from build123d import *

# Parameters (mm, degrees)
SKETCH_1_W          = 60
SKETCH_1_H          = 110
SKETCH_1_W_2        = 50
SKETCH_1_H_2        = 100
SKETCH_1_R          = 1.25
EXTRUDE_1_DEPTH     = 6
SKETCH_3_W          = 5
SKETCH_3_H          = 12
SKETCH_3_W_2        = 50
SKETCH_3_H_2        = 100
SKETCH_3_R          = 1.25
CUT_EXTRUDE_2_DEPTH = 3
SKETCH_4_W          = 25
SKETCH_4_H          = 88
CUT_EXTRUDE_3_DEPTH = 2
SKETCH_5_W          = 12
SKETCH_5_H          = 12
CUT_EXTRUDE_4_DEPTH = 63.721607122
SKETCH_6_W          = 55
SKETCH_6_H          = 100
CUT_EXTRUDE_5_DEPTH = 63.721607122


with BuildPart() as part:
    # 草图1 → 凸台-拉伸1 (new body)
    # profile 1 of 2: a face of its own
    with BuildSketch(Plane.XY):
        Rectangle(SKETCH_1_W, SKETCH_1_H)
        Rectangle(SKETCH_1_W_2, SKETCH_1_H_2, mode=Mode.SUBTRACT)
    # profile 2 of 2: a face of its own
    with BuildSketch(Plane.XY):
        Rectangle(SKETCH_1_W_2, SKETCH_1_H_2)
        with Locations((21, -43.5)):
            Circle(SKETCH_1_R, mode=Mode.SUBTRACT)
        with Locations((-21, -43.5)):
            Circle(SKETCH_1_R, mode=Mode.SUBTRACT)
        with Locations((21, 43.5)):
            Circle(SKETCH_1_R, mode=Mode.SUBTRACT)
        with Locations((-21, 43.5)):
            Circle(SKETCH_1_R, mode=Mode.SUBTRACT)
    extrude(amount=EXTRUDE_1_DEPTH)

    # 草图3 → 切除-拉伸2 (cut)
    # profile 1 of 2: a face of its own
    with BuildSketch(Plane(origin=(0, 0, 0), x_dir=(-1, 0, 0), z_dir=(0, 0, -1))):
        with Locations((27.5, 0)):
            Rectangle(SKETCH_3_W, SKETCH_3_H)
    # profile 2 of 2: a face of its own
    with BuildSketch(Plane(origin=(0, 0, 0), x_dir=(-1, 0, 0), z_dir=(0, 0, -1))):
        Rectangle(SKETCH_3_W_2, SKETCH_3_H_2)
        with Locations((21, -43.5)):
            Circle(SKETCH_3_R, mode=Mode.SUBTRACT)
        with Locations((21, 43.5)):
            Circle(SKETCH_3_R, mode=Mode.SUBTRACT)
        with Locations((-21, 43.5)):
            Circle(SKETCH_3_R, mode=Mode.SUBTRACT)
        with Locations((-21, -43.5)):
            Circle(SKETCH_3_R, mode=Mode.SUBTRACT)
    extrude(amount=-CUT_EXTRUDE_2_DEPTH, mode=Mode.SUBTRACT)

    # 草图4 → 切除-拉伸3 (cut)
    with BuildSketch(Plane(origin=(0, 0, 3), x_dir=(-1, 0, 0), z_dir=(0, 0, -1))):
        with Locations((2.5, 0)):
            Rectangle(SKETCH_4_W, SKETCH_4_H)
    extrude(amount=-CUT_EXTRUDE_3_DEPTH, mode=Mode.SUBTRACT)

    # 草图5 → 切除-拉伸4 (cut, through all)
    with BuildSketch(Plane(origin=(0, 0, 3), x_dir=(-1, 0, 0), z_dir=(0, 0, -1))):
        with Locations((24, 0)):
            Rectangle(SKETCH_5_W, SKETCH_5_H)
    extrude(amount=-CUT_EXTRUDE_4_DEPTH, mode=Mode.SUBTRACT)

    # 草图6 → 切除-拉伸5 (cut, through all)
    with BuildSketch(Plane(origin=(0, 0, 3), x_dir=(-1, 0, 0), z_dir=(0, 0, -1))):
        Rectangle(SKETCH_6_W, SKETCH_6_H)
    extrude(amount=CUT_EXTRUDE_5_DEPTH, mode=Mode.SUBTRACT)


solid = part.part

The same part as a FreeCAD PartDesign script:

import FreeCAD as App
import Part
import Sketcher

V = App.Vector
Q = App.Units.Quantity


def add_polygon(sketch, points):
    """Adds a closed chain of lines whose ends are joined by coincident constraints."""
    first, n = sketch.GeometryCount, len(points)
    for a, b in zip(points, points[1:] + points[:1]):
        sketch.addGeometry(Part.LineSegment(App.Vector(*a, 0), App.Vector(*b, 0)), False)
    for i in range(n):
        sketch.addConstraint(Sketcher.Constraint("Coincident", first + i, 2, first + (i + 1) % n, 1))

doc = App.newDocument("Part")
body = doc.addObject("PartDesign::Body", "Body")

sketch1 = body.newObject("Sketcher::SketchObject", "Sketch")
sketch1.AttachmentSupport = (doc.getObject("XY_Plane"), [""])
sketch1.MapMode = "FlatFace"
add_polygon(sketch1, [(-30, 55), (-30, -55), (30, -55), (30, 55)])
sketch1.addGeometry(Part.Circle(V(-21, -43.5, 0), V(0, 0, 1), 1.2), False)
sketch1.addGeometry(Part.Circle(V(21, 43.5, 0), V(0, 0, 1), 1.2), False)
sketch1.addGeometry(Part.Circle(V(21, -43.5, 0), V(0, 0, 1), 1.2), False)
sketch1.addGeometry(Part.Circle(V(-21, 43.5, 0), V(0, 0, 1), 1.2), False)
sketch1.addConstraint(Sketcher.Constraint("Vertical", 0))
sketch1.addConstraint(Sketcher.Constraint("Horizontal", 1))
sketch1.addConstraint(Sketcher.Constraint("Vertical", 2))
sketch1.addConstraint(Sketcher.Constraint("Horizontal", 3))
sketch1.addConstraint(Sketcher.Constraint("Equal", 4, 5))
sketch1.addConstraint(Sketcher.Constraint("Equal", 5, 6))
sketch1.addConstraint(Sketcher.Constraint("Equal", 6, 7))
sketch1.addConstraint(Sketcher.Constraint("Symmetric", 4, 3, 5, 3, -1, 1))
sketch1.addConstraint(Sketcher.Constraint("Symmetric", 6, 3, 7, 3, -1, 1))
sketch1.addConstraint(Sketcher.Constraint("Symmetric", 0, 2, 2, 2, -1, 1))
sketch1.addConstraint(Sketcher.Constraint("Symmetric", 4, 3, 6, 3, -2))
sketch1.addConstraint(Sketcher.Constraint("Diameter", 4, Q("2.5 mm")))
sketch1.addConstraint(Sketcher.Constraint("DistanceX", 1, 1, 1, 2, Q("60 mm")))
sketch1.addConstraint(Sketcher.Constraint("DistanceY", 0, 2, 0, 1, Q("110 mm")))
sketch1.addConstraint(Sketcher.Constraint("DistanceX", 4, 3, -1, 1, Q("21 mm")))
sketch1.addConstraint(Sketcher.Constraint("DistanceY", 4, 3, 5, 3, Q("87 mm")))
pad1 = body.newObject("PartDesign::Pad", "Pad")
pad1.Profile = sketch1
pad1.Length = 6

sketch2 = body.newObject("Sketcher::SketchObject", "Sketch001")
sketch2.AttachmentSupport = (doc.getObject("XY_Plane"), [""])
sketch2.MapMode = "FlatFace"
add_polygon(sketch2, [(-25, -6), (-30, -6), (-30, 6), (-25, 6), (-25, 50), (25, 50), (25, -50), (-25, -50)])
sketch2.addGeometry(Part.Circle(V(-21, 43.5, 0), V(0, 0, 1), 1.2), False)
sketch2.addGeometry(Part.Circle(V(21, -43.5, 0), V(0, 0, 1), 1.2), False)
sketch2.addGeometry(Part.Circle(V(-21, -43.5, 0), V(0, 0, 1), 1.2), False)
sketch2.addGeometry(Part.Circle(V(21, 43.5, 0), V(0, 0, 1), 1.2), False)
sketch2.addConstraint(Sketcher.Constraint("Horizontal", 0))
sketch2.addConstraint(Sketcher.Constraint("Vertical", 1))
sketch2.addConstraint(Sketcher.Constraint("Horizontal", 2))
sketch2.addConstraint(Sketcher.Constraint("Vertical", 3))
sketch2.addConstraint(Sketcher.Constraint("Horizontal", 4))
sketch2.addConstraint(Sketcher.Constraint("Vertical", 5))
sketch2.addConstraint(Sketcher.Constraint("Horizontal", 6))
sketch2.addConstraint(Sketcher.Constraint("Vertical", 7))
sketch2.addConstraint(Sketcher.Constraint("Equal", 8, 9))
sketch2.addConstraint(Sketcher.Constraint("Equal", 9, 10))
sketch2.addConstraint(Sketcher.Constraint("Equal", 10, 11))
sketch2.addConstraint(Sketcher.Constraint("Symmetric", 8, 3, 9, 3, -1, 1))
sketch2.addConstraint(Sketcher.Constraint("Symmetric", 10, 3, 11, 3, -1, 1))
sketch2.addConstraint(Sketcher.Constraint("Symmetric", 3, 2, 5, 2, -1, 1))
sketch2.addConstraint(Sketcher.Constraint("Symmetric", 9, 3, 10, 3, -2))
sketch2.addConstraint(Sketcher.Constraint("Symmetric", 2, 2, 7, 2, -1))
sketch2.addConstraint(Sketcher.Constraint("Diameter", 8, Q("2.5 mm")))
sketch2.addConstraint(Sketcher.Constraint("DistanceX", 0, 2, 0, 1, Q("5 mm")))
sketch2.addConstraint(Sketcher.Constraint("DistanceX", 4, 1, 4, 2, Q("50 mm")))
sketch2.addConstraint(Sketcher.Constraint("DistanceY", 1, 1, 1, 2, Q("12 mm")))
sketch2.addConstraint(Sketcher.Constraint("DistanceY", 3, 1, 3, 2, Q("44 mm")))
sketch2.addConstraint(Sketcher.Constraint("DistanceX", 8, 3, -1, 1, Q("21 mm")))
sketch2.addConstraint(Sketcher.Constraint("DistanceY", 9, 3, 8, 3, Q("87 mm")))
pocket1 = body.newObject("PartDesign::Pocket", "Pocket")
pocket1.Profile = sketch2
pocket1.Length = 3
pocket1.Reversed = True

sketch3 = body.newObject("Sketcher::SketchObject", "Sketch002")
sketch3.AttachmentSupport = (doc.getObject("XY_Plane"), [""])
sketch3.MapMode = "FlatFace"
sketch3.AttachmentOffset = App.Placement(V(0, 0, 3), App.Rotation())
add_polygon(sketch3, [(10, 44), (10, -44), (-15, -44), (-15, 44)])
sketch3.addConstraint(Sketcher.Constraint("Vertical", 0))
sketch3.addConstraint(Sketcher.Constraint("Horizontal", 1))
sketch3.addConstraint(Sketcher.Constraint("Vertical", 2))
sketch3.addConstraint(Sketcher.Constraint("Horizontal", 3))
sketch3.addConstraint(Sketcher.Constraint("DistanceX", 1, 2, 1, 1, Q("25 mm")))
sketch3.addConstraint(Sketcher.Constraint("DistanceY", 0, 2, 0, 1, Q("88 mm")))
sketch3.addConstraint(Sketcher.Constraint("DistanceX", -1, 1, 0, 2, Q("10 mm")))
sketch3.addConstraint(Sketcher.Constraint("DistanceY", 0, 2, -1, 1, Q("44 mm")))
pocket2 = body.newObject("PartDesign::Pocket", "Pocket001")
pocket2.Profile = sketch3
pocket2.Length = 2
pocket2.Reversed = True

sketch4 = body.newObject("Sketcher::SketchObject", "Sketch003")
sketch4.AttachmentSupport = (doc.getObject("XY_Plane"), [""])
sketch4.MapMode = "FlatFace"
sketch4.AttachmentOffset = App.Placement(V(0, 0, 3), App.Rotation())
add_polygon(sketch4, [(-18, 6), (-18, -6), (-30, -6), (-30, 6)])
sketch4.addConstraint(Sketcher.Constraint("Vertical", 0))
sketch4.addConstraint(Sketcher.Constraint("Horizontal", 1))
sketch4.addConstraint(Sketcher.Constraint("Vertical", 2))
sketch4.addConstraint(Sketcher.Constraint("Horizontal", 3))
sketch4.addConstraint(Sketcher.Constraint("Equal", 3, 0))
sketch4.addConstraint(Sketcher.Constraint("DistanceX", 1, 2, 1, 1, Q("12 mm")))
sketch4.addConstraint(Sketcher.Constraint("DistanceX", 0, 2, -1, 1, Q("18 mm")))
sketch4.addConstraint(Sketcher.Constraint("DistanceY", 0, 2, -1, 1, Q("6 mm")))
pocket3 = body.newObject("PartDesign::Pocket", "Pocket002")
pocket3.Profile = sketch4
pocket3.Type = "ThroughAll"
pocket3.Reversed = True

sketch5 = body.newObject("Sketcher::SketchObject", "Sketch004")
sketch5.AttachmentSupport = (doc.getObject("XY_Plane"), [""])
sketch5.MapMode = "FlatFace"
sketch5.AttachmentOffset = App.Placement(V(0, 0, 3), App.Rotation())
add_polygon(sketch5, [(28, 50), (28, -50), (-28, -50), (-28, 50)])
sketch5.addConstraint(Sketcher.Constraint("Vertical", 0))
sketch5.addConstraint(Sketcher.Constraint("Horizontal", 1))
sketch5.addConstraint(Sketcher.Constraint("Vertical", 2))
sketch5.addConstraint(Sketcher.Constraint("Horizontal", 3))
sketch5.addConstraint(Sketcher.Constraint("Symmetric", 0, 2, 2, 2, -1, 1))
sketch5.addConstraint(Sketcher.Constraint("DistanceX", 1, 2, 1, 1, Q("55 mm")))
sketch5.addConstraint(Sketcher.Constraint("DistanceY", 0, 2, 0, 1, Q("100 mm")))
pocket4 = body.newObject("PartDesign::Pocket", "Pocket003")
pocket4.Profile = sketch5
pocket4.Type = "ThroughAll"

doc.recompute()
